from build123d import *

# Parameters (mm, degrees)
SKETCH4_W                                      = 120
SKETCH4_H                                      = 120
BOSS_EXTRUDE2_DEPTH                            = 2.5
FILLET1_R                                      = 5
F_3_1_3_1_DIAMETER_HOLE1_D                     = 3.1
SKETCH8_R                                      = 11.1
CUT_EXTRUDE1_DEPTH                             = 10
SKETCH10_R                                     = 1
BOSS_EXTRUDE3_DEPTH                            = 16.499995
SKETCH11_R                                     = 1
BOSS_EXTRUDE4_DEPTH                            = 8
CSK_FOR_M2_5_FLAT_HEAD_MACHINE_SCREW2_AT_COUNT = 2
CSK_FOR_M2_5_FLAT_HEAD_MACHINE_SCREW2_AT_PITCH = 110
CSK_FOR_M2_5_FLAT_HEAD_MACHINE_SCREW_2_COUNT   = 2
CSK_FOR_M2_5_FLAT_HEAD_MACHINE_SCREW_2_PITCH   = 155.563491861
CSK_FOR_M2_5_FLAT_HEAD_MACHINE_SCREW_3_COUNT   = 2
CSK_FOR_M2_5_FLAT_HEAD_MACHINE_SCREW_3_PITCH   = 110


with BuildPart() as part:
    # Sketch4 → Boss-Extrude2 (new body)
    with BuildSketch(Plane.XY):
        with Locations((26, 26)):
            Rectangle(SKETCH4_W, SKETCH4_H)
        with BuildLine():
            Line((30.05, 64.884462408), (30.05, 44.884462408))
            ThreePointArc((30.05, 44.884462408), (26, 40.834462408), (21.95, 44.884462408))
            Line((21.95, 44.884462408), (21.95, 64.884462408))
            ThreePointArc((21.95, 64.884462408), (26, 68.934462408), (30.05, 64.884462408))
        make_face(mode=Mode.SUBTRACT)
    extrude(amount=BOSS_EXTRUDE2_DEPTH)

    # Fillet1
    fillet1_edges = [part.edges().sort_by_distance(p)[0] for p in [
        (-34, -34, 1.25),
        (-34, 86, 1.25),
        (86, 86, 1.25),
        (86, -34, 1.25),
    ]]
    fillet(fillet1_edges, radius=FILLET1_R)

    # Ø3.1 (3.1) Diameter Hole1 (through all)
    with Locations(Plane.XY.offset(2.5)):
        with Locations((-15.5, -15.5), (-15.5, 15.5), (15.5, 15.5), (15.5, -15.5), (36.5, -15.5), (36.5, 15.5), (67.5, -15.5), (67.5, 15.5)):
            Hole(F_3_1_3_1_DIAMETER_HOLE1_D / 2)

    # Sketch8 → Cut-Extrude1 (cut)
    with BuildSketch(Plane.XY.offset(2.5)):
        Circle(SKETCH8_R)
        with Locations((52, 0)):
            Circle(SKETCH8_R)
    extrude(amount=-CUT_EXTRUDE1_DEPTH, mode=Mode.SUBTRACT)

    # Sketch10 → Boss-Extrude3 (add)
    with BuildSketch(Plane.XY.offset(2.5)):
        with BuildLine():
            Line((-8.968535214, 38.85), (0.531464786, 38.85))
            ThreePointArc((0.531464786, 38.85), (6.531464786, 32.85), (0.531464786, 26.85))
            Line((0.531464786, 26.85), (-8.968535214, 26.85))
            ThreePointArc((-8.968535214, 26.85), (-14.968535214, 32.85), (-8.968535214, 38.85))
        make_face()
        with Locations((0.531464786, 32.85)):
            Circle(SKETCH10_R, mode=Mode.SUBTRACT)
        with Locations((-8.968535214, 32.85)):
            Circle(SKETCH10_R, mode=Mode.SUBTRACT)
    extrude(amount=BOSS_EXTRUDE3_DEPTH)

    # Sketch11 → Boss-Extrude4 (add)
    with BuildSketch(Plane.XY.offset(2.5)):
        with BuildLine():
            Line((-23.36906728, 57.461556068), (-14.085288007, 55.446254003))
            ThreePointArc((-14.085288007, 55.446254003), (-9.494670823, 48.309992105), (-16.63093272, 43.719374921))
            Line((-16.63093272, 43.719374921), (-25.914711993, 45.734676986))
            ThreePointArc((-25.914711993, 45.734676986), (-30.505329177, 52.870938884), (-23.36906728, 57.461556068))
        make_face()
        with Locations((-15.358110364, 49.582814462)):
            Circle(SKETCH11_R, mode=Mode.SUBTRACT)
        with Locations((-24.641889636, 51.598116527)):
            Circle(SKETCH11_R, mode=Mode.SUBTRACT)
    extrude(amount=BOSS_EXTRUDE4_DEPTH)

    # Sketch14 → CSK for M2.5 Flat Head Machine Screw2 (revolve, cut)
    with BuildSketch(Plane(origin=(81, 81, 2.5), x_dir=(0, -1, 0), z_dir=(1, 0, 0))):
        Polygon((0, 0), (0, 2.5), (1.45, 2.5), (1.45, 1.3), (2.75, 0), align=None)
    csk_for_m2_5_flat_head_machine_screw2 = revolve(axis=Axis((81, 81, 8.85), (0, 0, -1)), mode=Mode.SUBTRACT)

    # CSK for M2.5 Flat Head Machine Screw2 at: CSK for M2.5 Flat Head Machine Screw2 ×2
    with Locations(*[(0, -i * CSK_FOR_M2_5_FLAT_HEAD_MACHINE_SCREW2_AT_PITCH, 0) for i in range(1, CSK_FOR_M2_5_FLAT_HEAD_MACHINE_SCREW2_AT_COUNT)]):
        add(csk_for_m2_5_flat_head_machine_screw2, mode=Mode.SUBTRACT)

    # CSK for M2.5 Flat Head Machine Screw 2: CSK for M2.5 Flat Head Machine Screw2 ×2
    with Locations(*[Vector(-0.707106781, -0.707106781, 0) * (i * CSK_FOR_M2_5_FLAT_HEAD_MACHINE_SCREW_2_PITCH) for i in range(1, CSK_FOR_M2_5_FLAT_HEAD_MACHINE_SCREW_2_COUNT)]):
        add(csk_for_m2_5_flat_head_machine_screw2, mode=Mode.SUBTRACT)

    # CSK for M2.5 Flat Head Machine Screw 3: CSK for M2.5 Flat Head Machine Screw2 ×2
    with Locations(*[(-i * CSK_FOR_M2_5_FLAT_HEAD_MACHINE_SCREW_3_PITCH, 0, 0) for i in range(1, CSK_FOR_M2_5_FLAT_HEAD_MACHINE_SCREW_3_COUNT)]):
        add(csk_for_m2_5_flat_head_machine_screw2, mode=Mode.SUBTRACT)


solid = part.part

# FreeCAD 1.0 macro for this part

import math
import FreeCAD as App
import Part
import Sketcher
Q = App.Units.Quantity


def edges_at(feature, points):
    """Names of the edges that pass closest to the given points."""
    edges = feature.Shape.Edges
    near = lambda p: min(range(len(edges)), key=lambda i: edges[i].distToShape(Part.Vertex(*p))[0])
    return sorted({f"Edge{near(p) + 1}" for p in points})

doc = App.newDocument("Part")
body = doc.addObject("PartDesign::Body", "Body")

# Sketch on XY plane
sketch1 = doc.addObject("Sketcher::SketchObject", "Sketch")
body.addObject(sketch1)
sketch1.AttachmentSupport = (doc.XY_Plane, [""])
sketch1.MapMode = "FlatFace"
sketch1.addGeometry([
    Part.LineSegment(App.Vector(-34, 86, 0), App.Vector(-34, -34, 0)),  # 0
    Part.LineSegment(App.Vector(-34, -34, 0), App.Vector(86, -34, 0)),  # 1
    Part.LineSegment(App.Vector(86, -34, 0), App.Vector(86, 86, 0)),  # 2
    Part.LineSegment(App.Vector(86, 86, 0), App.Vector(-34, 86, 0)),  # 3
    Part.ArcOfCircle(Part.Circle(App.Vector(26, 64.9, 0), App.Vector(0, 0, 1), 4), math.radians(0), math.radians(180)),  # 4
    Part.LineSegment(App.Vector(30.1, 64.9, 0), App.Vector(30.1, 44.9, 0)),  # 5
    Part.ArcOfCircle(Part.Circle(App.Vector(26, 44.9, 0), App.Vector(0, 0, 1), 4), math.radians(180), math.radians(360)),  # 6
    Part.LineSegment(App.Vector(21.9, 44.9, 0), App.Vector(21.9, 64.9, 0)),  # 7
], False)
sketch1.addConstraint([
    Sketcher.Constraint("Coincident", 0, 2, 1, 1),
    Sketcher.Constraint("Coincident", 1, 2, 2, 1),
    Sketcher.Constraint("Coincident", 2, 2, 3, 1),
    Sketcher.Constraint("Coincident", 3, 2, 0, 1),
    Sketcher.Constraint("Tangent", 4, 1, 5, 1),
    Sketcher.Constraint("Tangent", 5, 2, 6, 2),
    Sketcher.Constraint("Tangent", 6, 1, 7, 1),
    Sketcher.Constraint("Tangent", 7, 2, 4, 2),
    Sketcher.Constraint("Vertical", 0),
    Sketcher.Constraint("Horizontal", 1),
    Sketcher.Constraint("Vertical", 2),
    Sketcher.Constraint("Horizontal", 3),
    Sketcher.Constraint("Vertical", 5),
    Sketcher.Constraint("Vertical", 7),
    Sketcher.Constraint("Equal", 3, 0),
    Sketcher.Constraint("DistanceX", 1, 1, 1, 2, 120.0),
    Sketcher.Constraint("DistanceY", 5, 2, 5, 1, 20.0),
    Sketcher.Constraint("Radius", 4, 4.05),
    Sketcher.Constraint("DistanceX", -1, 1, 4, 3, 26.0),
    Sketcher.Constraint("DistanceX", 0, 2, -1, 1, 34.0),
    Sketcher.Constraint("DistanceY", 0, 2, -1, 1, 34.0),
    Sketcher.Constraint("DistanceY", -1, 1, 4, 3, 64.884462),
])
pad1 = doc.addObject("PartDesign::Pad", "Pad")
body.addObject(pad1)
pad1.Profile = sketch1
pad1.Length = 2.5
doc.recompute()

fillet = doc.addObject("PartDesign::Fillet", "Fillet")
body.addObject(fillet)
fillet.Base = (pad1, edges_at(pad1, [
    (-34, -34, 1.25),
    (-34, 86, 1.25),
    (86, 86, 1.25),
    (86, -34, 1.25),
]))
fillet.Radius = 5

# Sketch on XY plane
sketch2 = doc.addObject("Sketcher::SketchObject", "Sketch001")
body.addObject(sketch2)
sketch2.AttachmentSupport = (doc.XY_Plane, [""])
sketch2.MapMode = "FlatFace"
sketch2.AttachmentOffset = App.Placement(App.Vector(0, 0, 2.5), App.Rotation())
sketch2.addGeometry([
    Part.Circle(App.Vector(-15.5, -15.5, 0), App.Vector(0, 0, 1), 1.6),  # 0
    Part.Circle(App.Vector(-15.5, 15.5, 0), App.Vector(0, 0, 1), 1.6),  # 1
    Part.Circle(App.Vector(15.5, 15.5, 0), App.Vector(0, 0, 1), 1.6),  # 2
    Part.Circle(App.Vector(15.5, -15.5, 0), App.Vector(0, 0, 1), 1.6),  # 3
    Part.Circle(App.Vector(36.5, -15.5, 0), App.Vector(0, 0, 1), 1.6),  # 4
    Part.Circle(App.Vector(36.5, 15.5, 0), App.Vector(0, 0, 1), 1.6),  # 5
    Part.Circle(App.Vector(67.5, -15.5, 0), App.Vector(0, 0, 1), 1.6),  # 6
    Part.Circle(App.Vector(67.5, 15.5, 0), App.Vector(0, 0, 1), 1.6),  # 7
], False)
sketch2.addConstraint([
    Sketcher.Constraint("Equal", 0, 1),
    Sketcher.Constraint("Equal", 1, 2),
    Sketcher.Constraint("Equal", 2, 3),
    Sketcher.Constraint("Equal", 3, 4),
    Sketcher.Constraint("Equal", 4, 5),
    Sketcher.Constraint("Equal", 5, 6),
    Sketcher.Constraint("Equal", 6, 7),
    Sketcher.Constraint("Symmetric", 0, 3, 2, 3, -1, 1),
    Sketcher.Constraint("Symmetric", 1, 3, 3, 3, -1, 1),
    Sketcher.Constraint("Symmetric", 1, 3, 2, 3, -2),
    Sketcher.Constraint("Symmetric", 4, 3, 5, 3, -1),
    Sketcher.Constraint("Symmetric", 6, 3, 7, 3, -1),
    Sketcher.Constraint("Horizontal", 3, 3, 4, 3),
    Sketcher.Constraint("Horizontal", 4, 3, 6, 3),
    Sketcher.Constraint("Diameter", 0, 3.1),
    Sketcher.Constraint("DistanceY", 0, 3, 1, 3, 31.0),
    Sketcher.Constraint("DistanceX", 1, 3, 2, 3, 31.0),
    Sketcher.Constraint("DistanceX", 3, 3, 4, 3, 21.0),
    Sketcher.Constraint("DistanceX", 4, 3, 6, 3, 31.0),
])
doc.recompute()
hole = doc.addObject("PartDesign::Hole", "Hole")
body.addObject(hole)
hole.Profile = sketch2
hole.ThreadType = "None"
hole.Diameter = 3.1
hole.DepthType = "ThroughAll"

# Sketch on XY plane
sketch3 = doc.addObject("Sketcher::SketchObject", "Sketch002")
body.addObject(sketch3)
sketch3.AttachmentSupport = (doc.XY_Plane, [""])
sketch3.MapMode = "FlatFace"
sketch3.AttachmentOffset = App.Placement(App.Vector(0, 0, 2.5), App.Rotation())
sketch3.addGeometry([
    Part.Circle(App.Vector(0, 0, 0), App.Vector(0, 0, 1), 11),
    Part.Circle(App.Vector(52, 0, 0), App.Vector(0, 0, 1), 11),
], False)
sketch3.addConstraint([
    Sketcher.Constraint("Coincident", 0, 3, -1, 1),
    Sketcher.Constraint("Equal", 0, 1),
    Sketcher.Constraint("PointOnObject", 1, 3, -1),
    Sketcher.Constraint("Diameter", 0, 22.2),
    Sketcher.Constraint("DistanceX", -1, 1, 1, 3, 52.0),
])
pocket1 = doc.addObject("PartDesign::Pocket", "Pocket")
body.addObject(pocket1)
pocket1.Profile = sketch3
pocket1.Length = 10

# Sketch on XY plane
sketch4 = doc.addObject("Sketcher::SketchObject", "Sketch003")
body.addObject(sketch4)
sketch4.AttachmentSupport = (doc.XY_Plane, [""])
sketch4.MapMode = "FlatFace"
sketch4.AttachmentOffset = App.Placement(App.Vector(0, 0, 2.5), App.Rotation())
sketch4.addGeometry([
    Part.LineSegment(App.Vector(0.5, 38.9, 0), App.Vector(-9, 38.9, 0)),  # 0
    Part.ArcOfCircle(Part.Circle(App.Vector(-9, 32.9, 0), App.Vector(0, 0, 1), 6), math.radians(90), math.radians(270)),  # 1
    Part.LineSegment(App.Vector(-9, 26.9, 0), App.Vector(0.5, 26.9, 0)),  # 2
    Part.ArcOfCircle(Part.Circle(App.Vector(0.5, 32.9, 0), App.Vector(0, 0, 1), 6), math.radians(-90), math.radians(90)),  # 3
    Part.Circle(App.Vector(0.5, 32.9, 0), App.Vector(0, 0, 1), 1),  # 4
    Part.Circle(App.Vector(-9, 32.9, 0), App.Vector(0, 0, 1), 1),  # 5
], False)
sketch4.addConstraint([
    Sketcher.Constraint("Tangent", 0, 2, 1, 1),
    Sketcher.Constraint("Tangent", 1, 2, 2, 1),
    Sketcher.Constraint("Tangent", 2, 2, 3, 1),
    Sketcher.Constraint("Tangent", 3, 2, 0, 1),
    Sketcher.Constraint("Horizontal", 0),
    Sketcher.Constraint("Horizontal", 2),
    Sketcher.Constraint("Coincident", 4, 3, 3, 3),
    Sketcher.Constraint("Coincident", 5, 3, 1, 3),
    Sketcher.Constraint("Equal", 4, 5),
    Sketcher.Constraint("Diameter", 4, 2.0),
    Sketcher.Constraint("Radius", 1, 6.0),
    Sketcher.Constraint("DistanceX", 0, 2, 0, 1, 9.5),
    Sketcher.Constraint("DistanceY", -1, 1, 1, 3, 32.85),
    Sketcher.Constraint("DistanceX", 1, 3, -1, 1, 8.968535),
])
pad2 = doc.addObject("PartDesign::Pad", "Pad001")
body.addObject(pad2)
pad2.Profile = sketch4
pad2.Length = 16.499995

# Sketch on XY plane
sketch5 = doc.addObject("Sketcher::SketchObject", "Sketch004")
body.addObject(sketch5)
sketch5.AttachmentSupport = (doc.XY_Plane, [""])
sketch5.MapMode = "FlatFace"
sketch5.AttachmentOffset = App.Placement(App.Vector(0, 0, 2.5), App.Rotation())
sketch5.addGeometry([
    Part.LineSegment(App.Vector(-14.1, 55.4, 0), App.Vector(-23.4, 57.5, 0)),  # 0
    Part.ArcOfCircle(Part.Circle(App.Vector(-24.6, 51.6, 0), App.Vector(0, 0, 1), 6), math.radians(78), math.radians(258)),  # 1
    Part.LineSegment(App.Vector(-25.9, 45.7, 0), App.Vector(-16.6, 43.7, 0)),  # 2
    Part.ArcOfCircle(Part.Circle(App.Vector(-15.4, 49.6, 0), App.Vector(0, 0, 1), 6), math.radians(-102), math.radians(78)),  # 3
    Part.Circle(App.Vector(-15.4, 49.6, 0), App.Vector(0, 0, 1), 1),  # 4
    Part.Circle(App.Vector(-24.6, 51.6, 0), App.Vector(0, 0, 1), 1),  # 5
], False)
sketch5.addConstraint([
    Sketcher.Constraint("Tangent", 0, 2, 1, 1),
    Sketcher.Constraint("Tangent", 1, 2, 2, 1),
    Sketcher.Constraint("Tangent", 2, 2, 3, 1),
    Sketcher.Constraint("Tangent", 3, 2, 0, 1),
    Sketcher.Constraint("Coincident", 4, 3, 3, 3),
    Sketcher.Constraint("Coincident", 5, 3, 1, 3),
    Sketcher.Constraint("Equal", 1, 3),
    Sketcher.Constraint("Equal", 4, 5),
    Sketcher.Constraint("Diameter", 4, 2.0),
    Sketcher.Constraint("Radius", 1, 6.0),
    Sketcher.Constraint("Distance", 0, 9.5),
    Sketcher.Constraint("DistanceX", 1, 2, 3, 3, 10.556602),
    Sketcher.Constraint("DistanceX", 1, 3, -1, 1, 24.64189),
    Sketcher.Constraint("DistanceY", -1, 1, 1, 3, 51.598117),
])
pad3 = doc.addObject("PartDesign::Pad", "Pad002")
body.addObject(pad3)
pad3.Profile = sketch5
pad3.Length = 8

# Sketch on YZ plane
sketch6 = doc.addObject("Sketcher::SketchObject", "Sketch005")
body.addObject(sketch6)
sketch6.AttachmentSupport = (doc.YZ_Plane, [""])
sketch6.MapMode = "FlatFace"
sketch6.AttachmentOffset = App.Placement(App.Vector(0, 0, 81), App.Rotation())
sketch6.addGeometry([
    Part.LineSegment(App.Vector(81, 0, 0), App.Vector(81, 2.5, 0)),  # 0
    Part.LineSegment(App.Vector(81, 2.5, 0), App.Vector(78.2, 2.5, 0)),  # 1
    Part.LineSegment(App.Vector(78.2, 2.5, 0), App.Vector(79.5, 1.2, 0)),  # 2
    Part.LineSegment(App.Vector(79.5, 1.2, 0), App.Vector(79.5, 0, 0)),  # 3
    Part.LineSegment(App.Vector(79.5, 0, 0), App.Vector(81, 0, 0)),  # 4
], False)
sketch6.addGeometry(Part.LineSegment(App.Vector(81, 2.5, 0), App.Vector(81, 0, 0)), True)  # axis
sketch6.addConstraint([
    Sketcher.Constraint("Coincident", 0, 2, 1, 1),
    Sketcher.Constraint("Coincident", 1, 2, 2, 1),
    Sketcher.Constraint("Coincident", 2, 2, 3, 1),
    Sketcher.Constraint("Coincident", 3, 2, 4, 1),
    Sketcher.Constraint("Coincident", 4, 2, 0, 1),
    Sketcher.Constraint("Vertical", 0),
    Sketcher.Constraint("Horizontal", 1),
    Sketcher.Constraint("Vertical", 3),
    Sketcher.Constraint("Horizontal", 4),
    Sketcher.Constraint("Vertical", 5),
    Sketcher.Constraint("Coincident", 5, 1, 0, 2),
    Sketcher.Constraint("PointOnObject", 3, 2, -1),
    Sketcher.Constraint("PointOnObject", 5, 2, -1),
    Sketcher.Constraint("Angle", 2, Q("-45 deg")),
    Sketcher.Constraint("DistanceY", 0, 1, 0, 2, 2.5),
    Sketcher.Constraint("DistanceY", 3, 2, 3, 1, 1.2),
    Sketcher.Constraint("DistanceX", -1, 1, 0, 2, 81.0),
    Sketcher.Constraint("DistanceX", 1, 2, 1, 1, 2.75),
])
groove = doc.addObject("PartDesign::Groove", "Groove")
body.addObject(groove)
groove.Profile = sketch6
groove.ReferenceAxis = (sketch6, ["Axis0"])
groove.Angle = 360
doc.recompute()

linearpattern = doc.addObject("PartDesign::LinearPattern", "LinearPattern")
body.addObject(linearpattern)
linearpattern.Originals = [groove]
linearpattern.Direction = (doc.Y_Axis, [""])
linearpattern.Mode = "offset"
linearpattern.Offset = 110
linearpattern.Occurrences = 2
linearpattern.Reversed = True
body.Tip = linearpattern
doc.recompute()

datumline = doc.addObject("PartDesign::Line", "DatumLine")
body.addObject(datumline)
datumline.Placement = App.Placement(App.Vector(0, 0, 0), App.Rotation(App.Vector(0, 0, 1), App.Vector(-0.707106781, -0.707106781, 0)))
linearpattern2 = doc.addObject("PartDesign::LinearPattern", "LinearPattern001")
body.addObject(linearpattern2)
linearpattern2.Originals = [groove]
linearpattern2.Direction = (datumline, [""])
linearpattern2.Mode = "offset"
linearpattern2.Offset = 155.563492
linearpattern2.Occurrences = 2
body.Tip = linearpattern2
doc.recompute()

linearpattern3 = doc.addObject("PartDesign::LinearPattern", "LinearPattern002")
body.addObject(linearpattern3)
linearpattern3.Originals = [groove]
linearpattern3.Direction = (doc.X_Axis, [""])
linearpattern3.Mode = "offset"
linearpattern3.Offset = 110
linearpattern3.Occurrences = 2
linearpattern3.Reversed = True
body.Tip = linearpattern3

doc.recompute()
